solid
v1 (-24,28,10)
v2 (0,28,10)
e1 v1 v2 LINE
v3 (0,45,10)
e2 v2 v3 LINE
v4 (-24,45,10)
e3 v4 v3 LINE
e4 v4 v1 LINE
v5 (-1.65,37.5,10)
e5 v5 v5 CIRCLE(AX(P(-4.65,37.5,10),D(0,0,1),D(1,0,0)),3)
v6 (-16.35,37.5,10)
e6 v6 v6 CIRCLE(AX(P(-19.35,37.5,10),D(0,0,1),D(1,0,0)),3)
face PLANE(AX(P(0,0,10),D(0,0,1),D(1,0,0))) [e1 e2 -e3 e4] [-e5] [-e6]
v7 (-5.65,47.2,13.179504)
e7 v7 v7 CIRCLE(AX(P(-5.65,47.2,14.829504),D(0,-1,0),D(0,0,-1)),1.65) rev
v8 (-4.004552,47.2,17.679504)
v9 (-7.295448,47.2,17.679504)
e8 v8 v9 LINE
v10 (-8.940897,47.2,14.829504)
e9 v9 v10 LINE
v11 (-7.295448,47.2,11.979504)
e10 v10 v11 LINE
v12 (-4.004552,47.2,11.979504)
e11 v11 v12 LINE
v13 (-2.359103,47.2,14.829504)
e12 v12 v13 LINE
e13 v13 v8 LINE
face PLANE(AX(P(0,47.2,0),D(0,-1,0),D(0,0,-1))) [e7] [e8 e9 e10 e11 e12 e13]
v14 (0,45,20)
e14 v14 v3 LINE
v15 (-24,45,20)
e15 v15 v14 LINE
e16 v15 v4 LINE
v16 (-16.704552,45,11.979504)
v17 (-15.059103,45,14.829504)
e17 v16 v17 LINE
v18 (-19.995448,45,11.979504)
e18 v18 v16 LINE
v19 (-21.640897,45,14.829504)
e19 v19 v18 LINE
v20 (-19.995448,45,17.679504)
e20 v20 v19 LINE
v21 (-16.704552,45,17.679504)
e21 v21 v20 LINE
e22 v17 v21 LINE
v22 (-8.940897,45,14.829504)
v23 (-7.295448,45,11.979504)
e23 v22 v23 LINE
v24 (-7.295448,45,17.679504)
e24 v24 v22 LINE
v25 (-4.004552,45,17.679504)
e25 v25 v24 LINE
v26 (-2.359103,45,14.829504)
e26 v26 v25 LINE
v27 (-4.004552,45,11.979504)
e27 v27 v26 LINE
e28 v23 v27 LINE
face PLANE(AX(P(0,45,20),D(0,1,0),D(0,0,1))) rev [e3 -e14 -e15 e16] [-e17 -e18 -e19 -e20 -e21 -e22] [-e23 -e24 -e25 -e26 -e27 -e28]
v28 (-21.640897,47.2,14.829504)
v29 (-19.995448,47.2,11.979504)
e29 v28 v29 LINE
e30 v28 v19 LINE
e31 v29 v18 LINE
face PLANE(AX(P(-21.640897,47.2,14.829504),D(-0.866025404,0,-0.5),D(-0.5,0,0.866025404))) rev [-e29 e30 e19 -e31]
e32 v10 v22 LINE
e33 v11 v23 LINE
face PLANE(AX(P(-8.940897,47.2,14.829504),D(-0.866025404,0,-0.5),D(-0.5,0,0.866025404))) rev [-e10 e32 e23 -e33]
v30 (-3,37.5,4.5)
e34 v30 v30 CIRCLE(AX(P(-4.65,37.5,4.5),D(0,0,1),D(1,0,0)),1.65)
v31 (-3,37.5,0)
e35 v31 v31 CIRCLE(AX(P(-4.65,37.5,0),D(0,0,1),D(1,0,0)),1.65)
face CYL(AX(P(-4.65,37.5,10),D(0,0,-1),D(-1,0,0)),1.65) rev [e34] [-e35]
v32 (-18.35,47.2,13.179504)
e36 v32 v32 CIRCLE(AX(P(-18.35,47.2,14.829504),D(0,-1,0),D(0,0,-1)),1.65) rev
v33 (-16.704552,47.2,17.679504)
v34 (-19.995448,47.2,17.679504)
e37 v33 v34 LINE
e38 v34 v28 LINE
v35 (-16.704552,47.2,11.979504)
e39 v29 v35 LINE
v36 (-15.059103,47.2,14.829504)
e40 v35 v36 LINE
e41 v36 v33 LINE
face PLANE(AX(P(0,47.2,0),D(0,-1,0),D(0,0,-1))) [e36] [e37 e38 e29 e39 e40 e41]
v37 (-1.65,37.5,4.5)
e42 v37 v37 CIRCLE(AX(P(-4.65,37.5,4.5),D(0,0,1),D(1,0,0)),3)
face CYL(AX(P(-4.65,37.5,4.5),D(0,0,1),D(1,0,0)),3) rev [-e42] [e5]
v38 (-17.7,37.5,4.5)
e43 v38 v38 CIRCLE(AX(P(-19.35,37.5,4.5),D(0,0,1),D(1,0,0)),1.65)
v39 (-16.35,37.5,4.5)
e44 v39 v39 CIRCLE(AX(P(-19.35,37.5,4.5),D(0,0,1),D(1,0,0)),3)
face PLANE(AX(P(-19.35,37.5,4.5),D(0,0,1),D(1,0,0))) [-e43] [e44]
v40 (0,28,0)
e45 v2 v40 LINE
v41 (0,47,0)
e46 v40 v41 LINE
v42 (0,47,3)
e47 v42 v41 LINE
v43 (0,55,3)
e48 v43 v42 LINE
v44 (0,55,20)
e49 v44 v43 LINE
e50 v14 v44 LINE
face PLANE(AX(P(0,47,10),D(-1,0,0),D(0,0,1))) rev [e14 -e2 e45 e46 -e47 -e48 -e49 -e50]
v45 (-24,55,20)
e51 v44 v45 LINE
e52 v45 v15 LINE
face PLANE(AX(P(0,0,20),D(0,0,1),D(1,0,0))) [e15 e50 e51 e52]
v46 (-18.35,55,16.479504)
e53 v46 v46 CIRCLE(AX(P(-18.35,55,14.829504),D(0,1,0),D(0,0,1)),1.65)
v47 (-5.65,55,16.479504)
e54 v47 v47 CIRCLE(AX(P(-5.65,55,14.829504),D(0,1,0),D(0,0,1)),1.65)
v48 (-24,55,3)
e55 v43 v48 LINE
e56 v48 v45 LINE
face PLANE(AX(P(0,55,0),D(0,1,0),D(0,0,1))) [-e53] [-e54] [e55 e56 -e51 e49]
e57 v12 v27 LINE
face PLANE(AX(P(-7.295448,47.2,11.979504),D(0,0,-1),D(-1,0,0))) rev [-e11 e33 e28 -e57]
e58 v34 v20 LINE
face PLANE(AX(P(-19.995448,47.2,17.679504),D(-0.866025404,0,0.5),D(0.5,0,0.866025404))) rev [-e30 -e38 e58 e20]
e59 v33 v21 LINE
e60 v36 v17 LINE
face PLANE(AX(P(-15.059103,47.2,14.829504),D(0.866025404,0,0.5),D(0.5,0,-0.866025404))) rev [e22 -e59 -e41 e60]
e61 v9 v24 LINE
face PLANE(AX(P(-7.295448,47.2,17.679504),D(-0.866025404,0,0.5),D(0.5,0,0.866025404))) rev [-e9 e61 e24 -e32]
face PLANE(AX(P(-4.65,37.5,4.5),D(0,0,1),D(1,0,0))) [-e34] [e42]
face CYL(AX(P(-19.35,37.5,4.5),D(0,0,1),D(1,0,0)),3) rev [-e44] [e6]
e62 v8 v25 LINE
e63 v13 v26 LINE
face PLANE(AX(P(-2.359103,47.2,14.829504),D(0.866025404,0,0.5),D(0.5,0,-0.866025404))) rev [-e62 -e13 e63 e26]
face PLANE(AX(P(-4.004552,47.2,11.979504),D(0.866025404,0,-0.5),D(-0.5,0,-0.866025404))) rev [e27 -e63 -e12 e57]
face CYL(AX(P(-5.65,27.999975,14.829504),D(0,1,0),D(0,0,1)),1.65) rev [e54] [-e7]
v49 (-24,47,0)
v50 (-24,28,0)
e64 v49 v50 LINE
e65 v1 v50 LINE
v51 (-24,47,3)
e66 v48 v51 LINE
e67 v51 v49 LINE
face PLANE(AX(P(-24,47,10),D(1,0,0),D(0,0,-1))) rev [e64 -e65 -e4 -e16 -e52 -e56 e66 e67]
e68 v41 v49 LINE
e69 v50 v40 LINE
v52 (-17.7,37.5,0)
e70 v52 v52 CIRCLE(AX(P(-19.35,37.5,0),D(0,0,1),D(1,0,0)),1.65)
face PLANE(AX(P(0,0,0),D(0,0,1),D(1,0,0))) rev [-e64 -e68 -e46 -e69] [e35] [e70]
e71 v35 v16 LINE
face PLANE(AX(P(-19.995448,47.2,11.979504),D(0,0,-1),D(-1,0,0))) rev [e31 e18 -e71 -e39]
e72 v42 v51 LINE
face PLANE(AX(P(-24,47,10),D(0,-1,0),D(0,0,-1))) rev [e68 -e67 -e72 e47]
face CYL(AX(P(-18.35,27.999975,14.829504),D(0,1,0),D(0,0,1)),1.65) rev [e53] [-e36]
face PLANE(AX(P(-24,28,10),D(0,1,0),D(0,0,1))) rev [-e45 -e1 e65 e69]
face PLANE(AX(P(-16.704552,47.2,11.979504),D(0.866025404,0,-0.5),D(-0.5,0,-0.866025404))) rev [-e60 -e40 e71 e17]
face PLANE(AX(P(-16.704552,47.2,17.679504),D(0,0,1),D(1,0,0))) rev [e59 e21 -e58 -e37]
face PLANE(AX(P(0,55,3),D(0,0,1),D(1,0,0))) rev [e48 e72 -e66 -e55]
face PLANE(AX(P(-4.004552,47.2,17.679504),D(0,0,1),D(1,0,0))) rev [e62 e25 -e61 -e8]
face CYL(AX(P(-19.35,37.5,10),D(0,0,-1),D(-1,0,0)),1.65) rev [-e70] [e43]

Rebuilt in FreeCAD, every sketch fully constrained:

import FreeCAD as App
import Part
import Sketcher
Q = App.Units.Quantity

doc = App.newDocument("Part")
params = doc.addObject("Spreadsheet::Sheet", "Params")
for row, (alias, value) in enumerate([
    ("sketch1_diameter", "3.3 mm"),
    ("sketch1_width", "24 mm"),
    ("sketch1_height", "19 mm"),
    ("pad1_length", "10 mm"),
    ("sketch2_diameter", "6 mm"),
    ("pocket1_length", "5.5 mm"),
    ("sketch3_width", "24 mm"),
    ("sketch3_height", "7 mm"),
    ("pad2_length", "8 mm"),
    ("sketch4_width", "24 mm"),
    ("sketch4_height", "10 mm"),
    ("pad3_length", "10 mm"),
    ("sketch5_diameter", "3.3 mm"),
    ("pocket3_length", "2.2 mm"),
], start=1):
    params.set(f"A{row}", alias)
    params.set(f"B{row}", "=" + value)
    params.setAlias(f"B{row}", alias)

body = doc.addObject("PartDesign::Body", "Body")

sketch1 = body.newObject("Sketcher::SketchObject", "Sketch")
sketch1.AttachmentSupport = (doc.getObject("XY_Plane"), [""])
sketch1.MapMode = "FlatFace"
sketch1.addGeometry([
    Part.LineSegment(App.Vector(-24, 47, 0), App.Vector(-24, 28, 0)),
    Part.LineSegment(App.Vector(-24, 28, 0), App.Vector(0, 28, 0)),
    Part.LineSegment(App.Vector(0, 28, 0), App.Vector(0, 47, 0)),
    Part.LineSegment(App.Vector(0, 47, 0), App.Vector(-24, 47, 0)),
    Part.Circle(App.Vector(-19.4, 37.5, 0), App.Vector(0, 0, 1), 1.6),
    Part.Circle(App.Vector(-4.7, 37.5, 0), App.Vector(0, 0, 1), 1.6),
], False)
sketch1.addConstraint([
    Sketcher.Constraint("Coincident", 0, 2, 1, 1),
    Sketcher.Constraint("Coincident", 1, 2, 2, 1),
    Sketcher.Constraint("Coincident", 2, 2, 3, 1),
    Sketcher.Constraint("Coincident", 3, 2, 0, 1),
    Sketcher.Constraint("Vertical", 0),
    Sketcher.Constraint("Horizontal", 1),
    Sketcher.Constraint("Vertical", 2),
    Sketcher.Constraint("Horizontal", 3),
    Sketcher.Constraint("Equal", 4, 5),
    Sketcher.Constraint("PointOnObject", 1, 2, -2),
    Sketcher.Constraint("Horizontal", 4, 3, 5, 3),
    Sketcher.Constraint("Diameter", 4, Q("3.3 mm")),
    Sketcher.Constraint("DistanceX", 1, 1, 1, 2, Q("24 mm")),
    Sketcher.Constraint("DistanceY", 0, 2, 0, 1, Q("19 mm")),
    Sketcher.Constraint("DistanceY", -1, 1, 0, 2, Q("28 mm")),
    Sketcher.Constraint("DistanceY", -1, 1, 4, 3, Q("37.5 mm")),
    Sketcher.Constraint("DistanceX", 4, 3, 5, 3, Q("14.7 mm")),
    Sketcher.Constraint("DistanceX", 4, 3, -1, 1, Q("19.35 mm")),
])
sketch1.setExpression("Constraints[11]", "Params.sketch1_diameter")
sketch1.setExpression("Constraints[12]", "Params.sketch1_width")
sketch1.setExpression("Constraints[13]", "Params.sketch1_height")
pad1 = body.newObject("PartDesign::Pad", "Pad")
pad1.Profile = sketch1
pad1.setExpression("Length", "Params.pad1_length")

sketch2 = body.newObject("Sketcher::SketchObject", "Sketch001")
sketch2.AttachmentSupport = (doc.getObject("XY_Plane"), [""])
sketch2.MapMode = "FlatFace"
sketch2.AttachmentOffset = App.Placement(App.Vector(0, 0, 10), App.Rotation())
sketch2.addGeometry([
    Part.Circle(App.Vector(-4.7, 37.5, 0), App.Vector(0, 0, 1), 3),
    Part.Circle(App.Vector(-19.4, 37.5, 0), App.Vector(0, 0, 1), 3),
], False)
sketch2.addConstraint([
    Sketcher.Constraint("Equal", 0, 1),
    Sketcher.Constraint("Horizontal", 0, 3, 1, 3),
    Sketcher.Constraint("Diameter", 0, Q("6 mm")),
    Sketcher.Constraint("DistanceY", -1, 1, 0, 3, Q("37.5 mm")),
    Sketcher.Constraint("DistanceX", 1, 3, 0, 3, Q("14.7 mm")),
    Sketcher.Constraint("DistanceX", 0, 3, -1, 1, Q("4.65 mm")),
])
sketch2.setExpression("Constraints[2]", "Params.sketch2_diameter")
pocket1 = body.newObject("PartDesign::Pocket", "Pocket")
pocket1.Profile = sketch2
pocket1.setExpression("Length", "Params.pocket1_length")

sketch3 = body.newObject("Sketcher::SketchObject", "Sketch002")
sketch3.AttachmentSupport = (doc.getObject("XZ_Plane"), [""])
sketch3.MapMode = "FlatFace"
sketch3.AttachmentOffset = App.Placement(App.Vector(0, 0, -47), App.Rotation())
sketch3.addGeometry([
    Part.LineSegment(App.Vector(-24, 3, 0), App.Vector(-24, 10, 0)),
    Part.LineSegment(App.Vector(-24, 10, 0), App.Vector(0, 10, 0)),
    Part.LineSegment(App.Vector(0, 10, 0), App.Vector(0, 3, 0)),
    Part.LineSegment(App.Vector(0, 3, 0), App.Vector(-24, 3, 0)),
], False)
sketch3.addConstraint([
    Sketcher.Constraint("Coincident", 0, 2, 1, 1),
    Sketcher.Constraint("Coincident", 1, 2, 2, 1),
    Sketcher.Constraint("Coincident", 2, 2, 3, 1),
    Sketcher.Constraint("Coincident", 3, 2, 0, 1),
    Sketcher.Constraint("Vertical", 0),
    Sketcher.Constraint("Horizontal", 1),
    Sketcher.Constraint("Vertical", 2),
    Sketcher.Constraint("Horizontal", 3),
    Sketcher.Constraint("PointOnObject", 1, 2, -2),
    Sketcher.Constraint("DistanceX", 1, 1, 1, 2, Q("24 mm")),
    Sketcher.Constraint("DistanceY", 0, 1, 0, 2, Q("7 mm")),
    Sketcher.Constraint("DistanceY", -1, 1, 0, 2, Q("10 mm")),
])
sketch3.setExpression("Constraints[9]", "Params.sketch3_width")
sketch3.setExpression("Constraints[10]", "Params.sketch3_height")
pad2 = body.newObject("PartDesign::Pad", "Pad001")
pad2.Profile = sketch3
pad2.setExpression("Length", "Params.pad2_length")
pad2.Reversed = True

sketch4 = body.newObject("Sketcher::SketchObject", "Sketch003")
sketch4.AttachmentSupport = (doc.getObject("XY_Plane"), [""])
sketch4.MapMode = "FlatFace"
sketch4.AttachmentOffset = App.Placement(App.Vector(0, 0, 10), App.Rotation())
sketch4.addGeometry([
    Part.LineSegment(App.Vector(-24, 55, 0), App.Vector(-24, 45, 0)),
    Part.LineSegment(App.Vector(-24, 45, 0), App.Vector(0, 45, 0)),
    Part.LineSegment(App.Vector(0, 45, 0), App.Vector(0, 55, 0)),
    Part.LineSegment(App.Vector(0, 55, 0), App.Vector(-24, 55, 0)),
], False)
sketch4.addConstraint([
    Sketcher.Constraint("Coincident", 0, 2, 1, 1),
    Sketcher.Constraint("Coincident", 1, 2, 2, 1),
    Sketcher.Constraint("Coincident", 2, 2, 3, 1),
    Sketcher.Constraint("Coincident", 3, 2, 0, 1),
    Sketcher.Constraint("Vertical", 0),
    Sketcher.Constraint("Horizontal", 1),
    Sketcher.Constraint("Vertical", 2),
    Sketcher.Constraint("Horizontal", 3),
    Sketcher.Constraint("PointOnObject", 1, 2, -2),
    Sketcher.Constraint("DistanceX", 1, 1, 1, 2, Q("24 mm")),
    Sketcher.Constraint("DistanceY", 0, 2, 0, 1, Q("10 mm")),
    Sketcher.Constraint("DistanceY", -1, 1, 0, 2, Q("45 mm")),
])
sketch4.setExpression("Constraints[9]", "Params.sketch4_width")
sketch4.setExpression("Constraints[10]", "Params.sketch4_height")
pad3 = body.newObject("PartDesign::Pad", "Pad002")
pad3.Profile = sketch4
pad3.setExpression("Length", "Params.pad3_length")

sketch5 = body.newObject("Sketcher::SketchObject", "Sketch004")
sketch5.AttachmentSupport = (doc.getObject("XZ_Plane"), [""])
sketch5.MapMode = "FlatFace"
sketch5.AttachmentOffset = App.Placement(App.Vector(0, 0, -55), App.Rotation())
sketch5.addGeometry([
    Part.Circle(App.Vector(-5.7, 14.8, 0), App.Vector(0, 0, 1), 1.6),
    Part.Circle(App.Vector(-18.4, 14.8, 0), App.Vector(0, 0, 1), 1.6),
], False)
sketch5.addConstraint([
    Sketcher.Constraint("Equal", 0, 1),
    Sketcher.Constraint("Horizontal", 0, 3, 1, 3),
    Sketcher.Constraint("Diameter", 0, Q("3.3 mm")),
    Sketcher.Constraint("DistanceX", 1, 3, 0, 3, Q("12.7 mm")),
    Sketcher.Constraint("DistanceX", 0, 3, -1, 1, Q("5.65 mm")),
    Sketcher.Constraint("DistanceY", -1, 1, 0, 3, Q("14.829504 mm")),
])
sketch5.setExpression("Constraints[2]", "Params.sketch5_diameter")
pocket2 = body.newObject("PartDesign::Pocket", "Pocket001")
pocket2.Profile = sketch5
pocket2.Type = "ThroughAll"
pocket2.Reversed = True

sketch6 = body.newObject("Sketcher::SketchObject", "Sketch005")
sketch6.AttachmentSupport = (doc.getObject("XZ_Plane"), [""])
sketch6.MapMode = "FlatFace"
sketch6.AttachmentOffset = App.Placement(App.Vector(0, 0, -45), App.Rotation())
sketch6.addGeometry([
    Part.LineSegment(App.Vector(-2.4, 14.8, 0), App.Vector(-4, 17.7, 0)),
    Part.LineSegment(App.Vector(-4, 17.7, 0), App.Vector(-7.3, 17.7, 0)),
    Part.LineSegment(App.Vector(-7.3, 17.7, 0), App.Vector(-8.9, 14.8, 0)),
    Part.LineSegment(App.Vector(-8.9, 14.8, 0), App.Vector(-7.3, 12, 0)),
    Part.LineSegment(App.Vector(-7.3, 12, 0), App.Vector(-4, 12, 0)),
    Part.LineSegment(App.Vector(-4, 12, 0), App.Vector(-2.4, 14.8, 0)),
    Part.LineSegment(App.Vector(-15.1, 14.8, 0), App.Vector(-16.7, 17.7, 0)),
    Part.LineSegment(App.Vector(-16.7, 17.7, 0), App.Vector(-20, 17.7, 0)),
    Part.LineSegment(App.Vector(-20, 17.7, 0), App.Vector(-21.6, 14.8, 0)),
    Part.LineSegment(App.Vector(-21.6, 14.8, 0), App.Vector(-20, 12, 0)),
    Part.LineSegment(App.Vector(-20, 12, 0), App.Vector(-16.7, 12, 0)),
    Part.LineSegment(App.Vector(-16.7, 12, 0), App.Vector(-15.1, 14.8, 0)),
], False)
sketch6.addConstraint([
    Sketcher.Constraint("Coincident", 0, 2, 1, 1),
    Sketcher.Constraint("Coincident", 1, 2, 2, 1),
    Sketcher.Constraint("Coincident", 2, 2, 3, 1),
    Sketcher.Constraint("Coincident", 3, 2, 4, 1),
    Sketcher.Constraint("Coincident", 4, 2, 5, 1),
    Sketcher.Constraint("Coincident", 5, 2, 0, 1),
    Sketcher.Constraint("Coincident", 6, 2, 7, 1),
    Sketcher.Constraint("Coincident", 7, 2, 8, 1),
    Sketcher.Constraint("Coincident", 8, 2, 9, 1),
    Sketcher.Constraint("Coincident", 9, 2, 10, 1),
    Sketcher.Constraint("Coincident", 10, 2, 11, 1),
    Sketcher.Constraint("Coincident", 11, 2, 6, 1),
    Sketcher.Constraint("Horizontal", 1),
    Sketcher.Constraint("Horizontal", 4),
    Sketcher.Constraint("Horizontal", 7),
    Sketcher.Constraint("Horizontal", 10),
    Sketcher.Constraint("Parallel", 0, 3),
    Sketcher.Constraint("Parallel", 2, 5),
    Sketcher.Constraint("Parallel", 3, 6),
    Sketcher.Constraint("Parallel", 5, 8),
    Sketcher.Constraint("Parallel", 6, 9),
    Sketcher.Constraint("Parallel", 8, 11),
    Sketcher.Constraint("Horizontal", 2, 2, 5, 2),
    Sketcher.Constraint("Horizontal", 1, 2, 6, 2),
    Sketcher.Constraint("Horizontal", 5, 2, 8, 2),
    Sketcher.Constraint("Horizontal", 4, 2, 9, 2),
    Sketcher.Constraint("Horizontal", 8, 2, 11, 2),
    Sketcher.Constraint("Vertical", 1, 2, 3, 2),
    Sketcher.Constraint("Vertical", 0, 2, 4, 2),
    Sketcher.Constraint("Equal", 4, 7),
    Sketcher.Constraint("Angle", 0, Q("120 deg")),
    Sketcher.Constraint("DistanceY", 3, 2, 1, 2, Q("5.7 mm")),
    Sketcher.Constraint("DistanceX", 6, 2, 0, 2, Q("12.7 mm")),
    Sketcher.Constraint("DistanceX", 1, 2, 1, 1, Q("3.290897 mm")),
    Sketcher.Constraint("DistanceX", 0, 2, -1, 1, Q("4.004552 mm")),
    Sketcher.Constraint("DistanceY", -1, 1, 0, 2, Q("17.679504 mm")),
])
pocket3 = body.newObject("PartDesign::Pocket", "Pocket002")
pocket3.Profile = sketch6
pocket3.setExpression("Length", "Params.pocket3_length")

doc.recompute()
